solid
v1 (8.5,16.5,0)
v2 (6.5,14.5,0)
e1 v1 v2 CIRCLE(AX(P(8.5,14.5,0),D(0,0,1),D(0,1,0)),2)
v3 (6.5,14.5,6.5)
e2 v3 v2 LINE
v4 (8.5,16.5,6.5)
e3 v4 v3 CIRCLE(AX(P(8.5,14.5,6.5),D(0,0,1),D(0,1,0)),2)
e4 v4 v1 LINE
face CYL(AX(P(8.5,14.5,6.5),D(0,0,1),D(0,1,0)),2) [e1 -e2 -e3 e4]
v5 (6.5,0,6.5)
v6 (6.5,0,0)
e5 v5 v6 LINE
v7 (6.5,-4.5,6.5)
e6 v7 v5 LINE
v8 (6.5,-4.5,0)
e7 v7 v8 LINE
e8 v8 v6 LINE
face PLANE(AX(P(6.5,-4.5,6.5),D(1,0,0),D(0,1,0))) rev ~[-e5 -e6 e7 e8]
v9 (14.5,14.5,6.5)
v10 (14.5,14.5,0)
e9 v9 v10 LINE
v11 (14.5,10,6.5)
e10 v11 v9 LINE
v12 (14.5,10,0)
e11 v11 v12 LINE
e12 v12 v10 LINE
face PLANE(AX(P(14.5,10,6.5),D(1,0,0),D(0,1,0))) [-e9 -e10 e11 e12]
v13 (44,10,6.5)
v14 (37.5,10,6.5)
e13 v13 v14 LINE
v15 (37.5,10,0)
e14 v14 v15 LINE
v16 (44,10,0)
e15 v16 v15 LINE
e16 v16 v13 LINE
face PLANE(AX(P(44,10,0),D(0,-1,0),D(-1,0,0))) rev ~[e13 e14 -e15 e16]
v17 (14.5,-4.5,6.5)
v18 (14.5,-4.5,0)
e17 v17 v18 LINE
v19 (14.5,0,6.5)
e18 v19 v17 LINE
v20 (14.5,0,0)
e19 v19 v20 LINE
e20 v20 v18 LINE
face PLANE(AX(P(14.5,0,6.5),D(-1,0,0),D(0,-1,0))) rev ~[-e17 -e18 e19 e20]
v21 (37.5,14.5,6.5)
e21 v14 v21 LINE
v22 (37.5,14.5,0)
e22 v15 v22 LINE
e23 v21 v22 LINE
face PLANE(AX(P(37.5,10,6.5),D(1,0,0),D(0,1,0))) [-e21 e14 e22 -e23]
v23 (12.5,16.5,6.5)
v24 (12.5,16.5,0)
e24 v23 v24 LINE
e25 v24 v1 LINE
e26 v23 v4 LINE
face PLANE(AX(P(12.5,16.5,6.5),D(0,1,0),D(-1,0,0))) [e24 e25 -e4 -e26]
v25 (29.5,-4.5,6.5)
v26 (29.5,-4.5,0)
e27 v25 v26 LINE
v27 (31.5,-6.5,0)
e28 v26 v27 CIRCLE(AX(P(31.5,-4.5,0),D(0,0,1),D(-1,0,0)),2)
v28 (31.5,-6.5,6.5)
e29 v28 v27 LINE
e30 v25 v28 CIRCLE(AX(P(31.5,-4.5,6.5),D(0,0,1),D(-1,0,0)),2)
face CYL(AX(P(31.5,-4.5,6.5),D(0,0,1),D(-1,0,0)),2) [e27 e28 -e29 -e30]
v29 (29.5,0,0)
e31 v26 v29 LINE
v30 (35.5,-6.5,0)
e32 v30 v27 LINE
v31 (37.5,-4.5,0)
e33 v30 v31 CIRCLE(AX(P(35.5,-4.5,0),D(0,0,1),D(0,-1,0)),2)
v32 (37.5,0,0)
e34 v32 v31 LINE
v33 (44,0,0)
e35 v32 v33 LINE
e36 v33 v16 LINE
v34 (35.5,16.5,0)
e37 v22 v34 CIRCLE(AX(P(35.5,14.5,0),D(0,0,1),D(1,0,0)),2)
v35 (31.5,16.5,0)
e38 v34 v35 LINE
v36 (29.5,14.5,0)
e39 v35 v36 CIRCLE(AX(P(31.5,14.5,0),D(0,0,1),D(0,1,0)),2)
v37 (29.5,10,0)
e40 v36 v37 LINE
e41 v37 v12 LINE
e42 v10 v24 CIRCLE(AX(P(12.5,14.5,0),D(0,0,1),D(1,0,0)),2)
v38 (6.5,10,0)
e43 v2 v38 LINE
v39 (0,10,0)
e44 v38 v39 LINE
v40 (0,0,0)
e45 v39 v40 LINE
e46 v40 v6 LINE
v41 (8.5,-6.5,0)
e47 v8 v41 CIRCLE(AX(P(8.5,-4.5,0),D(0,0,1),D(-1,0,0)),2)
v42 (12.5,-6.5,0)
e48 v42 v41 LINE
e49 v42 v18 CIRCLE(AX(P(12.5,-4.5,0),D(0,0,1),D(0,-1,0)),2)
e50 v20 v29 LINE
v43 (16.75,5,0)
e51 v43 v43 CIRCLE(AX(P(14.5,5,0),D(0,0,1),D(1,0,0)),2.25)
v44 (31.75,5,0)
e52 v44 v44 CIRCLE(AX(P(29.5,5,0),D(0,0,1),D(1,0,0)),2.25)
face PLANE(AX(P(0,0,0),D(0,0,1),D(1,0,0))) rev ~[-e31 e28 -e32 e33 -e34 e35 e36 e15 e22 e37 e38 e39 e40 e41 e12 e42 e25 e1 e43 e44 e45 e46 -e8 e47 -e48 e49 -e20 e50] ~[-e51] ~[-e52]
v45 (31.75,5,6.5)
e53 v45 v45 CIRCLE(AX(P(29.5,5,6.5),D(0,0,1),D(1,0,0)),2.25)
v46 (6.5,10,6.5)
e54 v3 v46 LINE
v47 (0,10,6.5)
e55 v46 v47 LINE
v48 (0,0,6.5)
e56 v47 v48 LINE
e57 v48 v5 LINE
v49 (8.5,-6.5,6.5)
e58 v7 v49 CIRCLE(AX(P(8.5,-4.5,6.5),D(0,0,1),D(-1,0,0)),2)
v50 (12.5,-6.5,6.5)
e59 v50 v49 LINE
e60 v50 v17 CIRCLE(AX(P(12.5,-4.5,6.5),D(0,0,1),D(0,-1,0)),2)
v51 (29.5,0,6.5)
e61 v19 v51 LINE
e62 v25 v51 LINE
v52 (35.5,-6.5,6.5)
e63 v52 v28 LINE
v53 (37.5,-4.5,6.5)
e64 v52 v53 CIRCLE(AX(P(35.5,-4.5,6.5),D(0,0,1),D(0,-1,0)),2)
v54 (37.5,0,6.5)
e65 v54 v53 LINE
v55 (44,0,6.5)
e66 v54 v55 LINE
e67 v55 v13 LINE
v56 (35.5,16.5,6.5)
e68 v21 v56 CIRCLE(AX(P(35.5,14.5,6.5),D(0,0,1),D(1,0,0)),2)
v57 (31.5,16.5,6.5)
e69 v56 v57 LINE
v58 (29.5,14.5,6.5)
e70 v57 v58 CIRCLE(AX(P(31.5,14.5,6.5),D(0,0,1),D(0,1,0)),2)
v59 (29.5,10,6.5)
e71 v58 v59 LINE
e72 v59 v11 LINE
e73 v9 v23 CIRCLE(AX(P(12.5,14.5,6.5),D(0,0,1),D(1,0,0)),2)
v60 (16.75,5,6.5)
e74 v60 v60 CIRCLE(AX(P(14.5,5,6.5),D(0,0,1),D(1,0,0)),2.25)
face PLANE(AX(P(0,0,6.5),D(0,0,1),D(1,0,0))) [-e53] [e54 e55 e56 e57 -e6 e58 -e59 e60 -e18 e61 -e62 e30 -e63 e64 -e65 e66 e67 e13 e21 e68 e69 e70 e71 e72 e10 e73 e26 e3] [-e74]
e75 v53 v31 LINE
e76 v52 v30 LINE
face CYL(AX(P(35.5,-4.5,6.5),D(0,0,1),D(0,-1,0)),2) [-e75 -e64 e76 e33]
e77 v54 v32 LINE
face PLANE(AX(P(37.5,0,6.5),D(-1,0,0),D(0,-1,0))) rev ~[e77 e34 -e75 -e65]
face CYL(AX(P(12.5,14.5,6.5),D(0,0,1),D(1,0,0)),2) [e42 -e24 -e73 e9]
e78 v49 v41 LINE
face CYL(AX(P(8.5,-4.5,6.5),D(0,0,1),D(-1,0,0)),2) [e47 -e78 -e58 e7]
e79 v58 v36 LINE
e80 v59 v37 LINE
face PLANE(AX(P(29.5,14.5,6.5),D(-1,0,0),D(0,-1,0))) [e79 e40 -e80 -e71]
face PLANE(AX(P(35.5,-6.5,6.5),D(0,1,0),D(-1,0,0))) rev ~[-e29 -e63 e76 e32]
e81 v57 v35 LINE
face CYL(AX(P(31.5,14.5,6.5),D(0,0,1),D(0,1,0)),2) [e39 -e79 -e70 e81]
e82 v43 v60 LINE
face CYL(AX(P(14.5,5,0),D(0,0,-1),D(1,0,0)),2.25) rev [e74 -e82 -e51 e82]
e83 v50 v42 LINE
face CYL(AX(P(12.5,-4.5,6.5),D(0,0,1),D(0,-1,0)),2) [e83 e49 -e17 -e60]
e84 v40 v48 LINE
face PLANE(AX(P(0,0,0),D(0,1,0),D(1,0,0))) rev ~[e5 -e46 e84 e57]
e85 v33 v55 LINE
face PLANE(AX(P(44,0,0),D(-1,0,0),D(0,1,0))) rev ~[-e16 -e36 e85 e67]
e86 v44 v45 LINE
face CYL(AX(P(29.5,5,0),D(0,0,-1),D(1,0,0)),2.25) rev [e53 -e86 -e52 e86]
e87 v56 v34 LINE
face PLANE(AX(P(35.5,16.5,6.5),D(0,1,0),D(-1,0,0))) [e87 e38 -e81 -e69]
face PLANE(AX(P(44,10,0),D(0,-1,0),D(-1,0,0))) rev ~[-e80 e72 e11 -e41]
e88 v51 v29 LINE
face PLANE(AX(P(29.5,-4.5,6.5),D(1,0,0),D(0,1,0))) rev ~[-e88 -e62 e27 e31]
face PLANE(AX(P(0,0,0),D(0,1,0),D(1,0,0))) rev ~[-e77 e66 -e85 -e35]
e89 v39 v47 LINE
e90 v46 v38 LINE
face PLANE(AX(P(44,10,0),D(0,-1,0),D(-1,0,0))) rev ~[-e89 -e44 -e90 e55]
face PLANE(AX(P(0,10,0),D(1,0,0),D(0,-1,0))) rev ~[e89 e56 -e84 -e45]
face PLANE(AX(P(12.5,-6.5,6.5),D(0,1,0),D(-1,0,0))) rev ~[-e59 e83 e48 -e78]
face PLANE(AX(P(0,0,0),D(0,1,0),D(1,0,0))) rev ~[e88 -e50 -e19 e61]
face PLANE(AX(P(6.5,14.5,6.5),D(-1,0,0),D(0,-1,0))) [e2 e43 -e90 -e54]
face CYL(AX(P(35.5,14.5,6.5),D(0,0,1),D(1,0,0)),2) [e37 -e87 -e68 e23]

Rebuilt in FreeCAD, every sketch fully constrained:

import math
import FreeCAD as App
import Part
import Sketcher

V = App.Vector
Q = App.Units.Quantity


def add_polygon(sketch, points):
    """Adds a closed chain of lines whose ends are joined by coincident constraints."""
    first, n = sketch.GeometryCount, len(points)
    for a, b in zip(points, points[1:] + points[:1]):
        sketch.addGeometry(Part.LineSegment(App.Vector(*a, 0), App.Vector(*b, 0)), False)
    for i in range(n):
        sketch.addConstraint(Sketcher.Constraint("Coincident", first + i, 2, first + (i + 1) % n, 1))

doc = App.newDocument("Part")
body = doc.addObject("PartDesign::Body", "Body")

sketch1 = body.newObject("Sketcher::SketchObject", "Sketch")
sketch1.AttachmentSupport = (doc.getObject("XY_Plane"), [""])
sketch1.MapMode = "FlatFace"
add_polygon(sketch1, [(0, 10), (0, 0), (44, 0), (44, 10)])
sketch1.addGeometry(Part.Circle(V(14.5, 5, 0), V(0, 0, 1), 2.2), False)
sketch1.addGeometry(Part.Circle(V(29.5, 5, 0), V(0, 0, 1), 2.2), False)
sketch1.addConstraint([
    Sketcher.Constraint("Vertical", 0),
    Sketcher.Constraint("Horizontal", 1),
    Sketcher.Constraint("Vertical", 2),
    Sketcher.Constraint("Horizontal", 3),
    Sketcher.Constraint("Coincident", 0, 2, -1, 1),
    Sketcher.Constraint("Equal", 4, 5),
    Sketcher.Constraint("Horizontal", 4, 3, 5, 3),
    Sketcher.Constraint("Diameter", 4, Q("4.5 mm")),
    Sketcher.Constraint("DistanceX", 1, 1, 1, 2, Q("44 mm")),
    Sketcher.Constraint("DistanceY", 0, 2, 0, 1, Q("10 mm")),
    Sketcher.Constraint("DistanceX", 4, 3, 5, 3, Q("15 mm")),
    Sketcher.Constraint("DistanceY", -1, 1, 4, 3, Q("5 mm")),
    Sketcher.Constraint("DistanceX", -1, 1, 4, 3, Q("14.5 mm")),
])
pad1 = body.newObject("PartDesign::Pad", "Pad")
pad1.Profile = sketch1
pad1.Length = 6.5

sketch2 = body.newObject("Sketcher::SketchObject", "Sketch001")
sketch2.AttachmentSupport = (doc.getObject("XY_Plane"), [""])
sketch2.MapMode = "FlatFace"
sketch2.AttachmentOffset = App.Placement(V(0, 0, 6.5), App.Rotation())
sketch2.addGeometry([
    Part.LineSegment(V(37.5, 0, 0), V(29.5, 0, 0)),
    Part.LineSegment(V(29.5, 0, 0), V(29.5, -4.5, 0)),
    Part.ArcOfCircle(Part.Circle(V(31.5, -4.5, 0), V(0, 0, 1), 2), math.radians(180), math.radians(270)),
    Part.LineSegment(V(31.5, -6.5, 0), V(35.5, -6.5, 0)),
    Part.ArcOfCircle(Part.Circle(V(35.5, -4.5, 0), V(0, 0, 1), 2), math.radians(-90), math.radians(0)),
    Part.LineSegment(V(37.5, -4.5, 0), V(37.5, 0, 0)),
    Part.LineSegment(V(14.5, 0, 0), V(6.5, 0, 0)),
    Part.LineSegment(V(6.5, 0, 0), V(6.5, -4.5, 0)),
    Part.ArcOfCircle(Part.Circle(V(8.5, -4.5, 0), V(0, 0, 1), 2), math.radians(180), math.radians(270)),
    Part.LineSegment(V(8.5, -6.5, 0), V(12.5, -6.5, 0)),
    Part.ArcOfCircle(Part.Circle(V(12.5, -4.5, 0), V(0, 0, 1), 2), math.radians(-90), math.radians(0)),
    Part.LineSegment(V(14.5, -4.5, 0), V(14.5, 0, 0)),
    Part.LineSegment(V(6.5, 10, 0), V(14.5, 10, 0)),
    Part.LineSegment(V(14.5, 10, 0), V(14.5, 14.5, 0)),
    Part.ArcOfCircle(Part.Circle(V(12.5, 14.5, 0), V(0, 0, 1), 2), math.radians(0), math.radians(90)),
    Part.LineSegment(V(12.5, 16.5, 0), V(8.5, 16.5, 0)),
    Part.ArcOfCircle(Part.Circle(V(8.5, 14.5, 0), V(0, 0, 1), 2), math.radians(90), math.radians(180)),
    Part.LineSegment(V(6.5, 14.5, 0), V(6.5, 10, 0)),
    Part.LineSegment(V(29.5, 10, 0), V(37.5, 10, 0)),
    Part.LineSegment(V(37.5, 10, 0), V(37.5, 14.5, 0)),
    Part.ArcOfCircle(Part.Circle(V(35.5, 14.5, 0), V(0, 0, 1), 2), math.radians(0), math.radians(90)),
    Part.LineSegment(V(35.5, 16.5, 0), V(31.5, 16.5, 0)),
    Part.ArcOfCircle(Part.Circle(V(31.5, 14.5, 0), V(0, 0, 1), 2), math.radians(90), math.radians(180)),
    Part.LineSegment(V(29.5, 14.5, 0), V(29.5, 10, 0)),
], False)
sketch2.addConstraint([
    Sketcher.Constraint("Coincident", 0, 2, 1, 1),
    Sketcher.Constraint("Tangent", 1, 2, 2, 1),
    Sketcher.Constraint("Tangent", 2, 2, 3, 1),
    Sketcher.Constraint("Tangent", 3, 2, 4, 1),
    Sketcher.Constraint("Tangent", 4, 2, 5, 1),
    Sketcher.Constraint("Coincident", 5, 2, 0, 1),
    Sketcher.Constraint("Coincident", 6, 2, 7, 1),
    Sketcher.Constraint("Tangent", 7, 2, 8, 1),
    Sketcher.Constraint("Tangent", 8, 2, 9, 1),
    Sketcher.Constraint("Tangent", 9, 2, 10, 1),
    Sketcher.Constraint("Tangent", 10, 2, 11, 1),
    Sketcher.Constraint("Coincident", 11, 2, 6, 1),
    Sketcher.Constraint("Coincident", 12, 2, 13, 1),
    Sketcher.Constraint("Tangent", 13, 2, 14, 1),
    Sketcher.Constraint("Tangent", 14, 2, 15, 1),
    Sketcher.Constraint("Tangent", 15, 2, 16, 1),
    Sketcher.Constraint("Tangent", 16, 2, 17, 1),
    Sketcher.Constraint("Coincident", 17, 2, 12, 1),
    Sketcher.Constraint("Coincident", 18, 2, 19, 1),
    Sketcher.Constraint("Tangent", 19, 2, 20, 1),
    Sketcher.Constraint("Tangent", 20, 2, 21, 1),
    Sketcher.Constraint("Tangent", 21, 2, 22, 1),
    Sketcher.Constraint("Tangent", 22, 2, 23, 1),
    Sketcher.Constraint("Coincident", 23, 2, 18, 1),
    Sketcher.Constraint("Horizontal", 0),
    Sketcher.Constraint("Vertical", 1),
    Sketcher.Constraint("Horizontal", 3),
    Sketcher.Constraint("Vertical", 5),
    Sketcher.Constraint("Horizontal", 6),
    Sketcher.Constraint("Vertical", 7),
    Sketcher.Constraint("Horizontal", 9),
    Sketcher.Constraint("Vertical", 11),
    Sketcher.Constraint("Horizontal", 12),
    Sketcher.Constraint("Vertical", 13),
    Sketcher.Constraint("Horizontal", 15),
    Sketcher.Constraint("Vertical", 17),
    Sketcher.Constraint("Horizontal", 18),
    Sketcher.Constraint("Vertical", 19),
    Sketcher.Constraint("Horizontal", 21),
    Sketcher.Constraint("Vertical", 23),
    Sketcher.Constraint("Equal", 2, 4),
    Sketcher.Constraint("Equal", 4, 8),
    Sketcher.Constraint("Equal", 8, 10),
    Sketcher.Constraint("Equal", 10, 14),
    Sketcher.Constraint("Equal", 14, 16),
    Sketcher.Constraint("Equal", 16, 20),
    Sketcher.Constraint("Equal", 20, 22),
    Sketcher.Constraint("PointOnObject", 0, 2, -1),
    Sketcher.Constraint("PointOnObject", 6, 2, -1),
    Sketcher.Constraint("Horizontal", 4, 3, 8, 3),
    Sketcher.Constraint("Horizontal", 16, 3, 20, 3),
    Sketcher.Constraint("Horizontal", 17, 2, 18, 2),
    Sketcher.Constraint("Vertical", 10, 3, 14, 3),
    Sketcher.Constraint("Vertical", 8, 3, 16, 3),
    Sketcher.Constraint("Vertical", 4, 3, 20, 3),
    Sketcher.Constraint("Vertical", 2, 3, 22, 3),
    Sketcher.Constraint("Equal", 0, 6),
    Sketcher.Constraint("Equal", 11, 13),
    Sketcher.Constraint("Radius", 2, Q("2 mm")),
    Sketcher.Constraint("DistanceX", 0, 2, 0, 1, Q("8 mm")),
    Sketcher.Constraint("DistanceY", 2, 2, -1, 1, Q("6.5 mm")),
    Sketcher.Constraint("DistanceX", -1, 1, 6, 2, Q("6.5 mm")),
    Sketcher.Constraint("DistanceY", -1, 1, 12, 2, Q("10 mm")),
    Sketcher.Constraint("DistanceX", 8, 3, 2, 3, Q("23 mm")),
])
pad2 = body.newObject("PartDesign::Pad", "Pad001")
pad2.Profile = sketch2
pad2.Length = 6.5
pad2.Reversed = True

doc.recompute()
